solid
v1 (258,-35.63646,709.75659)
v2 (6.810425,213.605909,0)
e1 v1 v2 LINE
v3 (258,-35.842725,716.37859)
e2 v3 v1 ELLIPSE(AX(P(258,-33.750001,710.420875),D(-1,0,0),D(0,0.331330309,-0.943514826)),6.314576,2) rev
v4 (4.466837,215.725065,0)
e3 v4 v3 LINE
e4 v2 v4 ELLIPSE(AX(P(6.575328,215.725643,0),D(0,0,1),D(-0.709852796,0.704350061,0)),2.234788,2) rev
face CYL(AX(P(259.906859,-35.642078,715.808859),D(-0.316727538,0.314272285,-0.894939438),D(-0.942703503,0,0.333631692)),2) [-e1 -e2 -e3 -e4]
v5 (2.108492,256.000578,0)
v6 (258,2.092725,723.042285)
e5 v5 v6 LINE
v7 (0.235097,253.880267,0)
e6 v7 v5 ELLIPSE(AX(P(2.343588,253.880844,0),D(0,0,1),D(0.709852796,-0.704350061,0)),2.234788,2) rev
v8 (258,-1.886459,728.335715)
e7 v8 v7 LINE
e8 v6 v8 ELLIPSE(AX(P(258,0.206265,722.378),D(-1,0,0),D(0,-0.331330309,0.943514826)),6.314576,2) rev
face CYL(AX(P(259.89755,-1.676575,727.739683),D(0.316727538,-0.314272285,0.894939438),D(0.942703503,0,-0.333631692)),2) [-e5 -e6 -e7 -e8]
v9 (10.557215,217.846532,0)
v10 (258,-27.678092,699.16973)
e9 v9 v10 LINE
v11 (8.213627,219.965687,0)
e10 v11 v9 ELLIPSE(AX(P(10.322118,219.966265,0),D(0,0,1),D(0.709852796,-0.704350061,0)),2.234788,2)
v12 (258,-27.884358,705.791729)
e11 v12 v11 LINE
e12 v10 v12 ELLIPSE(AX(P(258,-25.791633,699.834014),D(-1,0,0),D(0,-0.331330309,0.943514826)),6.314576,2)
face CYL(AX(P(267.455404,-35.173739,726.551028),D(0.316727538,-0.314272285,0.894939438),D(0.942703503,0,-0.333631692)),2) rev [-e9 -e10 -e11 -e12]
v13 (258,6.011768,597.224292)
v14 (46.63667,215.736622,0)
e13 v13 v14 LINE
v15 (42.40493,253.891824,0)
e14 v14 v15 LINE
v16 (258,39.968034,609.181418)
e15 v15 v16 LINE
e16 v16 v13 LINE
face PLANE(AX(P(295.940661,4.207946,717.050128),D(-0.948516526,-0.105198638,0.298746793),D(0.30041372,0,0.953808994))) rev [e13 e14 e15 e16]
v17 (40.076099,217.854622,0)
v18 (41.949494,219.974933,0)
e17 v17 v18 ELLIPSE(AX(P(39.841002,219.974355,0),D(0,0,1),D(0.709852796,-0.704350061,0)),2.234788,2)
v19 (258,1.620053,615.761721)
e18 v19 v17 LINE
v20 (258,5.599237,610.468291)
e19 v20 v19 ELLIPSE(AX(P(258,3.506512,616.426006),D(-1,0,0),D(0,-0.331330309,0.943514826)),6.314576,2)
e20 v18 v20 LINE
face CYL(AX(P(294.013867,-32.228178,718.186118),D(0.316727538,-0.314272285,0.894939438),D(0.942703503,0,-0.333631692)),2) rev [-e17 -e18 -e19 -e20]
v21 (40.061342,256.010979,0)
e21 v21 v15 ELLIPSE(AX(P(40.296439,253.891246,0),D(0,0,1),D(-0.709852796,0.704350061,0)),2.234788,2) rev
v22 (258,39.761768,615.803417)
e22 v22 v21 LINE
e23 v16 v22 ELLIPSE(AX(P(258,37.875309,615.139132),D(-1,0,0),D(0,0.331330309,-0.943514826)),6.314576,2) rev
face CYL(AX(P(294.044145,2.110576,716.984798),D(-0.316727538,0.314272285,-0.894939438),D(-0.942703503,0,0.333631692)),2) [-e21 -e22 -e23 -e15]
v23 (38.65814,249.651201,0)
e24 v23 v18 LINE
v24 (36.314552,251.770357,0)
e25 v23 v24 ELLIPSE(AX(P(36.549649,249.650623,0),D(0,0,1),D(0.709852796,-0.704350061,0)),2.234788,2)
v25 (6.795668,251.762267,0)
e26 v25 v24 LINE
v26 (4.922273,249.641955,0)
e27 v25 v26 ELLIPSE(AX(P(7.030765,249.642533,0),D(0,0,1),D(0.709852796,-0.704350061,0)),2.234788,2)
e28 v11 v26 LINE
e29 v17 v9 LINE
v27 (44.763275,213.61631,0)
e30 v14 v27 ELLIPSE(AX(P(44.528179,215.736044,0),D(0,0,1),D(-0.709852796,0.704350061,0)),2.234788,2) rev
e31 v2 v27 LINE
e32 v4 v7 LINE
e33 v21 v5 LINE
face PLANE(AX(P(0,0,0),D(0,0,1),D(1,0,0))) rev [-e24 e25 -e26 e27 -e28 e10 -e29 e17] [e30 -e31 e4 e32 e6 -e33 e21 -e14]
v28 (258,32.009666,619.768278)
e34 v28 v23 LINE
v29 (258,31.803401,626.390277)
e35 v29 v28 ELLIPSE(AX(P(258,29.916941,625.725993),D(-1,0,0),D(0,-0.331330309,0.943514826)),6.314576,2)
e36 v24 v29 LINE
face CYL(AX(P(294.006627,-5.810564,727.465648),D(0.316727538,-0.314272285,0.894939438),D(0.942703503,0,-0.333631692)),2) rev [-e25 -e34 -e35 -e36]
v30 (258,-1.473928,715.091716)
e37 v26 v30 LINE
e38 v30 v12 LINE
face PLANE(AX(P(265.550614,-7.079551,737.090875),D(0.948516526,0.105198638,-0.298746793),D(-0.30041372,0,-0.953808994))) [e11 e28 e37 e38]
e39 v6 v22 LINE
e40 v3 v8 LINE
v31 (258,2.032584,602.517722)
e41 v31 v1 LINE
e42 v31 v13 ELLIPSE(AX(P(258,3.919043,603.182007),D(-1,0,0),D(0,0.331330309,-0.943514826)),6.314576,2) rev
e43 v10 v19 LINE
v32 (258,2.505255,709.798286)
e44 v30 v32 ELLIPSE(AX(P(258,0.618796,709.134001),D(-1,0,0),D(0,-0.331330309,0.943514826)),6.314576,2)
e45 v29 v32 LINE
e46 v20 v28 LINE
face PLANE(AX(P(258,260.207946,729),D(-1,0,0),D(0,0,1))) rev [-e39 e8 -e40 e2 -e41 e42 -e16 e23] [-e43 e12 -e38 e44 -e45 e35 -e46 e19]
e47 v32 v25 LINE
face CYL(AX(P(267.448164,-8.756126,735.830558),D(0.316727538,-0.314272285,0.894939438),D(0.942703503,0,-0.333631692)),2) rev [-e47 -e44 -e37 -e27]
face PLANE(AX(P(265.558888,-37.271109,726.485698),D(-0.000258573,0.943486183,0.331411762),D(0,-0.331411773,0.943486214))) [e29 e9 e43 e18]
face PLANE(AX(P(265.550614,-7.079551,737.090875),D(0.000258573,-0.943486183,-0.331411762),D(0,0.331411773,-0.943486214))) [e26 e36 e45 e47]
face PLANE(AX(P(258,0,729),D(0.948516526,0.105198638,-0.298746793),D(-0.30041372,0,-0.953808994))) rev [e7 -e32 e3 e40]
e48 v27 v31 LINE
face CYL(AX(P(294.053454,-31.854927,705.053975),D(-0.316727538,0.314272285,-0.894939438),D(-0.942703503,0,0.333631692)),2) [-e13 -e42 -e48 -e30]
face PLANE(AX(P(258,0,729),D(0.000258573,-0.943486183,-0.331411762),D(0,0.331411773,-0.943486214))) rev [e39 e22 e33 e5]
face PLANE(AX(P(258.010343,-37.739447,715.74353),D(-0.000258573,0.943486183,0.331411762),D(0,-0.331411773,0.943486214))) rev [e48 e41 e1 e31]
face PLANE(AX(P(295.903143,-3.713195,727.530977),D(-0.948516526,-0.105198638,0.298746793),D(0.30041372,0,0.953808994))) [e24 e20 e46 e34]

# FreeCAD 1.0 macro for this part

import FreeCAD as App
import Part
import Sketcher

V = App.Vector
Q = App.Units.Quantity


def edges_at(feature, points):
    """Names of the edges that pass closest to the given points."""
    edges = feature.Shape.Edges
    near = lambda p: min(range(len(edges)), key=lambda i: edges[i].distToShape(Part.Vertex(*p))[0])
    return sorted({f"Edge{near(p) + 1}" for p in points})

doc = App.newDocument("Part")
params = doc.addObject("Spreadsheet::Sheet", "Params")
for row, (alias, value) in enumerate([
    ("sketch1_width", "258 mm"),
    ("sketch1_height", "256 mm"),
    ("pad1_length", "729 mm"),
    ("sketch2_width", "256 mm"),
    ("sketch2_height", "729 mm"),
    ("pocket1_length", "727 mm"),
    ("sketch3_width", "40 mm"),
    ("pad2_length", "814.58026 mm"),
    ("sketch5_width", "40 mm"),
    ("sketch6_width", "32 mm"),
    ("fillet_radius", "2 mm"),
], start=1):
    params.set(f"A{row}", alias)
    params.set(f"B{row}", "=" + value)
    params.setAlias(f"B{row}", alias)

body = doc.addObject("PartDesign::Body", "Body")

sketch1 = body.newObject("Sketcher::SketchObject", "Sketch")
sketch1.AttachmentSupport = (doc.getObject("XY_Plane"), [""])
sketch1.MapMode = "FlatFace"
sketch1.addGeometry(Part.LineSegment(V(0, 0, 0), V(258, 0, 0)), False)
sketch1.addGeometry(Part.LineSegment(V(258, 0, 0), V(0, 256, 0)), False)
sketch1.addGeometry(Part.LineSegment(V(0, 256, 0), V(0, 0, 0)), False)
sketch1.addConstraint(Sketcher.Constraint("Coincident", 0, 2, 1, 1))
sketch1.addConstraint(Sketcher.Constraint("Coincident", 1, 2, 2, 1))
sketch1.addConstraint(Sketcher.Constraint("Coincident", 2, 2, 0, 1))
sketch1.addConstraint(Sketcher.Constraint("Horizontal", 0))
sketch1.addConstraint(Sketcher.Constraint("Vertical", 2))
sketch1.addConstraint(Sketcher.Constraint("Coincident", 2, 2, -1, 1))
sketch1.addConstraint(Sketcher.Constraint("DistanceX", 0, 1, 0, 2, Q("258 mm")))
sketch1.addConstraint(Sketcher.Constraint("DistanceY", 2, 2, 2, 1, Q("256 mm")))
sketch1.setExpression("Constraints[6]", "Params.sketch1_width")
sketch1.setExpression("Constraints[7]", "Params.sketch1_height")
pad1 = body.newObject("PartDesign::Pad", "Pad")
pad1.Profile = sketch1
pad1.setExpression("Length", "Params.pad1_length")

sketch2 = body.newObject("Sketcher::SketchObject", "Sketch001")
sketch2.AttachmentSupport = (doc.getObject("YZ_Plane"), [""])
sketch2.MapMode = "FlatFace"
sketch2.addGeometry(Part.LineSegment(V(256, 0, 0), V(0, 729, 0)), False)
sketch2.addGeometry(Part.LineSegment(V(0, 729, 0), V(256, 729, 0)), False)
sketch2.addGeometry(Part.LineSegment(V(256, 729, 0), V(256, 0, 0)), False)
sketch2.addConstraint(Sketcher.Constraint("Coincident", 0, 2, 1, 1))
sketch2.addConstraint(Sketcher.Constraint("Coincident", 1, 2, 2, 1))
sketch2.addConstraint(Sketcher.Constraint("Coincident", 2, 2, 0, 1))
sketch2.addConstraint(Sketcher.Constraint("Horizontal", 1))
sketch2.addConstraint(Sketcher.Constraint("Vertical", 2))
sketch2.addConstraint(Sketcher.Constraint("PointOnObject", 0, 2, -2))
sketch2.addConstraint(Sketcher.Constraint("PointOnObject", 2, 2, -1))
sketch2.addConstraint(Sketcher.Constraint("DistanceX", 1, 1, 1, 2, Q("256 mm")))
sketch2.addConstraint(Sketcher.Constraint("DistanceY", 2, 2, 2, 1, Q("729 mm")))
sketch2.setExpression("Constraints[7]", "Params.sketch2_width")
sketch2.setExpression("Constraints[8]", "Params.sketch2_height")
pocket1 = body.newObject("PartDesign::Pocket", "Pocket")
pocket1.Profile = sketch2
pocket1.setExpression("Length", "Params.pocket1_length")
pocket1.Reversed = True

sketch3 = body.newObject("Sketcher::SketchObject", "Sketch002")
sketch3.Placement = App.Placement(V(0, 256, 0), App.Rotation(V(0.948516526, 0.105198638, -0.298746793), V(-0.000258573, 0.943486183, 0.331411762), V(0.316727538, -0.314272285, 0.894939438), "ZXY"))
sketch3.addGeometry(Part.LineSegment(V(0, 0, 0), V(0, -40, 0)), False)
sketch3.addGeometry(Part.LineSegment(V(0, -40, 0), V(40, -40, 0)), False)
sketch3.addGeometry(Part.LineSegment(V(40, -40, 0), V(40, 0, 0)), False)
sketch3.addGeometry(Part.LineSegment(V(40, 0, 0), V(0, 0, 0)), False)
sketch3.addConstraint(Sketcher.Constraint("Coincident", 0, 2, 1, 1))
sketch3.addConstraint(Sketcher.Constraint("Coincident", 1, 2, 2, 1))
sketch3.addConstraint(Sketcher.Constraint("Coincident", 2, 2, 3, 1))
sketch3.addConstraint(Sketcher.Constraint("Coincident", 3, 2, 0, 1))
sketch3.addConstraint(Sketcher.Constraint("Vertical", 0))
sketch3.addConstraint(Sketcher.Constraint("Horizontal", 1))
sketch3.addConstraint(Sketcher.Constraint("Vertical", 2))
sketch3.addConstraint(Sketcher.Constraint("Horizontal", 3))
sketch3.addConstraint(Sketcher.Constraint("Coincident", 3, 2, -1, 1))
sketch3.addConstraint(Sketcher.Constraint("Equal", 3, 0))
sketch3.addConstraint(Sketcher.Constraint("DistanceX", 1, 1, 1, 2, Q("40 mm")))
sketch3.setExpression("Constraints[10]", "Params.sketch3_width")
pad2 = body.newObject("PartDesign::Pad", "Pad001")
pad2.Profile = sketch3
pad2.setExpression("Length", "Params.pad2_length")

sketch4 = body.newObject("Sketcher::SketchObject", "Sketch003")
sketch4.AttachmentSupport = (doc.getObject("XZ_Plane"), [""])
sketch4.MapMode = "FlatFace"
sketch4.addGeometry(Part.LineSegment(V(357, 581, 0), V(357, 729, 0)), False)
sketch4.addGeometry(Part.LineSegment(V(357, 729, 0), V(258, 729, 0)), False)
sketch4.addGeometry(Part.LineSegment(V(258, 729, 0), V(258, 581, 0)), False)
sketch4.addGeometry(Part.LineSegment(V(258, 581, 0), V(357, 581, 0)), False)
sketch4.addGeometry(Part.LineSegment(V(78, -46, 0), V(78, 0, 0)), False)
sketch4.addGeometry(Part.LineSegment(V(78, 0, 0), V(0, 0, 0)), False)
sketch4.addGeometry(Part.LineSegment(V(0, 0, 0), V(0, -46, 0)), False)
sketch4.addGeometry(Part.LineSegment(V(0, -46, 0), V(78, -46, 0)), False)
sketch4.addConstraint(Sketcher.Constraint("Coincident", 0, 2, 1, 1))
sketch4.addConstraint(Sketcher.Constraint("Coincident", 1, 2, 2, 1))
sketch4.addConstraint(Sketcher.Constraint("Coincident", 2, 2, 3, 1))
sketch4.addConstraint(Sketcher.Constraint("Coincident", 3, 2, 0, 1))
sketch4.addConstraint(Sketcher.Constraint("Coincident", 4, 2, 5, 1))
sketch4.addConstraint(Sketcher.Constraint("Coincident", 5, 2, 6, 1))
sketch4.addConstraint(Sketcher.Constraint("Coincident", 6, 2, 7, 1))
sketch4.addConstraint(Sketcher.Constraint("Coincident", 7, 2, 4, 1))
sketch4.addConstraint(Sketcher.Constraint("Vertical", 0))
sketch4.addConstraint(Sketcher.Constraint("Horizontal", 1))
sketch4.addConstraint(Sketcher.Constraint("Vertical", 2))
sketch4.addConstraint(Sketcher.Constraint("Horizontal", 3))
sketch4.addConstraint(Sketcher.Constraint("Vertical", 4))
sketch4.addConstraint(Sketcher.Constraint("Horizontal", 5))
sketch4.addConstraint(Sketcher.Constraint("Vertical", 6))
sketch4.addConstraint(Sketcher.Constraint("Horizontal", 7))
sketch4.addConstraint(Sketcher.Constraint("Coincident", 5, 2, -1, 1))
sketch4.addConstraint(Sketcher.Constraint("DistanceY", -1, 1, 0, 2, Q("729 mm")))
sketch4.addConstraint(Sketcher.Constraint("DistanceX", -1, 1, 1, 2, Q("258 mm")))
sketch4.addConstraint(Sketcher.Constraint("DistanceX", 1, 2, 1, 1, Q("98.578401 mm")))
sketch4.addConstraint(Sketcher.Constraint("DistanceY", 4, 1, 4, 2, Q("46.084081 mm")))
sketch4.addConstraint(Sketcher.Constraint("DistanceX", 5, 2, 5, 1, Q("77.840885 mm")))
sketch4.addConstraint(Sketcher.Constraint("DistanceY", 0, 1, 0, 2, Q("147.950097 mm")))
pocket2 = body.newObject("PartDesign::Pocket", "Pocket001")
pocket2.Profile = sketch4
pocket2.Type = "ThroughAll"
pocket2.Midplane = True

sketch5 = body.newObject("Sketcher::SketchObject", "Sketch004")
sketch5.Placement = App.Placement(V(0, 256, 0), App.Rotation(V(0.948516526, 0.105198638, -0.298746793), V(-0.000258573, 0.943486183, 0.331411762), V(0.316727538, -0.314272285, 0.894939438), "ZXY"))
sketch5.addGeometry(Part.LineSegment(V(-388, 254, 0), V(-388, -362, 0)), False)
sketch5.addGeometry(Part.LineSegment(V(-388, -362, 0), V(434, -362, 0)), False)
sketch5.addGeometry(Part.LineSegment(V(434, -362, 0), V(434, 254, 0)), False)
sketch5.addGeometry(Part.LineSegment(V(434, 254, 0), V(-388, 254, 0)), False)
sketch5.addGeometry(Part.LineSegment(V(40, -40, 0), V(0, -40, 0)), False)
sketch5.addGeometry(Part.LineSegment(V(0, -40, 0), V(0, 0, 0)), False)
sketch5.addGeometry(Part.LineSegment(V(0, 0, 0), V(40, 0, 0)), False)
sketch5.addGeometry(Part.LineSegment(V(40, 0, 0), V(40, -40, 0)), False)
sketch5.addConstraint(Sketcher.Constraint("Coincident", 0, 2, 1, 1))
sketch5.addConstraint(Sketcher.Constraint("Coincident", 1, 2, 2, 1))
sketch5.addConstraint(Sketcher.Constraint("Coincident", 2, 2, 3, 1))
sketch5.addConstraint(Sketcher.Constraint("Coincident", 3, 2, 0, 1))
sketch5.addConstraint(Sketcher.Constraint("Coincident", 4, 2, 5, 1))
sketch5.addConstraint(Sketcher.Constraint("Coincident", 5, 2, 6, 1))
sketch5.addConstraint(Sketcher.Constraint("Coincident", 6, 2, 7, 1))
sketch5.addConstraint(Sketcher.Constraint("Coincident", 7, 2, 4, 1))
sketch5.addConstraint(Sketcher.Constraint("Vertical", 0))
sketch5.addConstraint(Sketcher.Constraint("Horizontal", 1))
sketch5.addConstraint(Sketcher.Constraint("Vertical", 2))
sketch5.addConstraint(Sketcher.Constraint("Horizontal", 3))
sketch5.addConstraint(Sketcher.Constraint("Horizontal", 4))
sketch5.addConstraint(Sketcher.Constraint("Vertical", 5))
sketch5.addConstraint(Sketcher.Constraint("Horizontal", 6))
sketch5.addConstraint(Sketcher.Constraint("Vertical", 7))
sketch5.addConstraint(Sketcher.Constraint("Coincident", 5, 2, -1, 1))
sketch5.addConstraint(Sketcher.Constraint("Equal", 6, 5))
sketch5.addConstraint(Sketcher.Constraint("DistanceX", 4, 2, 4, 1, Q("40 mm")))
sketch5.addConstraint(Sketcher.Constraint("DistanceX", 1, 1, 1, 2, Q("821.54451 mm")))
sketch5.addConstraint(Sketcher.Constraint("DistanceY", 0, 2, 0, 1, Q("616.158382 mm")))
sketch5.addConstraint(Sketcher.Constraint("DistanceX", 0, 2, -1, 1, Q("387.86514 mm")))
sketch5.addConstraint(Sketcher.Constraint("DistanceY", 0, 2, -1, 1, Q("362.05031 mm")))
sketch5.setExpression("Constraints[18]", "Params.sketch5_width")
pocket3 = body.newObject("PartDesign::Pocket", "Pocket002")
pocket3.Profile = sketch5
pocket3.Type = "ThroughAll"
pocket3.Reversed = True

sketch6 = body.newObject("Sketcher::SketchObject", "Sketch005")
sketch6.Placement = App.Placement(V(0, 256, 0), App.Rotation(V(0.948516526, 0.105198638, -0.298746793), V(-0.000258573, 0.943486183, 0.331411762), V(0.316727538, -0.314272285, 0.894939438), "ZXY"))
sketch6.addGeometry(Part.LineSegment(V(4, -4, 0), V(4, -36, 0)), False)
sketch6.addGeometry(Part.LineSegment(V(4, -36, 0), V(36, -36, 0)), False)
sketch6.addGeometry(Part.LineSegment(V(36, -36, 0), V(36, -4, 0)), False)
sketch6.addGeometry(Part.LineSegment(V(36, -4, 0), V(4, -4, 0)), False)
sketch6.addConstraint(Sketcher.Constraint("Coincident", 0, 2, 1, 1))
sketch6.addConstraint(Sketcher.Constraint("Coincident", 1, 2, 2, 1))
sketch6.addConstraint(Sketcher.Constraint("Coincident", 2, 2, 3, 1))
sketch6.addConstraint(Sketcher.Constraint("Coincident", 3, 2, 0, 1))
sketch6.addConstraint(Sketcher.Constraint("Vertical", 0))
sketch6.addConstraint(Sketcher.Constraint("Horizontal", 1))
sketch6.addConstraint(Sketcher.Constraint("Vertical", 2))
sketch6.addConstraint(Sketcher.Constraint("Horizontal", 3))
sketch6.addConstraint(Sketcher.Constraint("Equal", 3, 0))
sketch6.addConstraint(Sketcher.Constraint("DistanceX", 1, 1, 1, 2, Q("32 mm")))
sketch6.addConstraint(Sketcher.Constraint("DistanceX", -1, 1, 0, 2, Q("4 mm")))
sketch6.addConstraint(Sketcher.Constraint("DistanceY", 0, 2, -1, 1, Q("36 mm")))
sketch6.setExpression("Constraints[9]", "Params.sketch6_width")
pocket4 = body.newObject("PartDesign::Pocket", "Pocket003")
pocket4.Profile = sketch6
pocket4.Type = "ThroughAll"
pocket4.Reversed = True
doc.recompute()

fillet = body.newObject("PartDesign::Fillet", "Fillet")
fillet.Base = (pocket4, edges_at(pocket4, [
    (131.344, 126.087, 357.878),
    (133.224, 94.038, 352.564),
    (150.092, 110.784, 304.902),
    (148.212, 142.834, 310.216),
    (129, 128, 364.5),
    (150.085, 148.933, 304.923),
    (152.436, 108.871, 298.28),
    (131.351, 87.938, 357.857),
]))
fillet.setExpression("Radius", "Params.fillet_radius")

doc.recompute()
